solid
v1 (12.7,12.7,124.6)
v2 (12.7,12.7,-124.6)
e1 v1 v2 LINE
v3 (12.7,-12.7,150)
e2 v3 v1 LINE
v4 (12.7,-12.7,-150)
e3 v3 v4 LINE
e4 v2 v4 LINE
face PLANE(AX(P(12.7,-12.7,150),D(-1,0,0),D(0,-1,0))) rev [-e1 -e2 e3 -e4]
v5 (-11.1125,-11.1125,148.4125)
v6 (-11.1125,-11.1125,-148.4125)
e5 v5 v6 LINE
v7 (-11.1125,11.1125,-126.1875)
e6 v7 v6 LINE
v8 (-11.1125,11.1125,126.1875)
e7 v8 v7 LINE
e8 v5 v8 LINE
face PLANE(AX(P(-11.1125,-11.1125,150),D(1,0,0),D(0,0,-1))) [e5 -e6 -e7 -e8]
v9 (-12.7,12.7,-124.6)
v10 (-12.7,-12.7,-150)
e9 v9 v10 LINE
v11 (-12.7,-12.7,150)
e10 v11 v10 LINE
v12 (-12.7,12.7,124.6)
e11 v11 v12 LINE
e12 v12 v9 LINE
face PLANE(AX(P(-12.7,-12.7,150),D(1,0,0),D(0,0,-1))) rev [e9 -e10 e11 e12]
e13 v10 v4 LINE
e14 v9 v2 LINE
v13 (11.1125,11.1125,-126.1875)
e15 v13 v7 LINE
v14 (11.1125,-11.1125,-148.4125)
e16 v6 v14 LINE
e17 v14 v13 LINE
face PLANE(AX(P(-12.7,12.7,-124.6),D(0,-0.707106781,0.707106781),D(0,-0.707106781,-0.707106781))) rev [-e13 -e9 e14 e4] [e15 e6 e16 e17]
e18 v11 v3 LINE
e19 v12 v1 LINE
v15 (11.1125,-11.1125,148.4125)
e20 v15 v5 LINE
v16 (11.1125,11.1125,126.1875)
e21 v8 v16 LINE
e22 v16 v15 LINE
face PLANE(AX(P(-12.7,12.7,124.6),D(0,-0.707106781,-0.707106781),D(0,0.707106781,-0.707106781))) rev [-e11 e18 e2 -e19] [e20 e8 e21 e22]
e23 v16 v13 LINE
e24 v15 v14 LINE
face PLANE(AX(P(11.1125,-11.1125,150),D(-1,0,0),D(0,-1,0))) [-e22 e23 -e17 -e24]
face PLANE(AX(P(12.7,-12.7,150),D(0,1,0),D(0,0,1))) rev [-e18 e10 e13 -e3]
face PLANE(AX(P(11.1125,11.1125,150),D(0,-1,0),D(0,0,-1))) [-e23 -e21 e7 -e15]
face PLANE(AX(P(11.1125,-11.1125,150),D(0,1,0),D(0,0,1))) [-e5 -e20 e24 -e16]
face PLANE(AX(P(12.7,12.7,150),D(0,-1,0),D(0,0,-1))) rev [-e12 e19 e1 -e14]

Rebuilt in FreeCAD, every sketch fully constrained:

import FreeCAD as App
import Part
import Sketcher
from FreeCAD import Vector
Q = App.Units.Quantity


def add_polygon(sketch, points):
    """Adds a closed chain of lines whose ends are joined by coincident constraints."""
    first, n = sketch.GeometryCount, len(points)
    for a, b in zip(points, points[1:] + points[:1]):
        sketch.addGeometry(Part.LineSegment(App.Vector(*a, 0), App.Vector(*b, 0)), False)
    for i in range(n):
        sketch.addConstraint(Sketcher.Constraint("Coincident", first + i, 2, first + (i + 1) % n, 1))

doc = App.newDocument("Part")
body = doc.addObject("PartDesign::Body", "Body")

sketch1 = body.newObject("Sketcher::SketchObject", "Sketch")
sketch1.AttachmentSupport = (doc.getObject("XY_Plane"), [""])
sketch1.MapMode = "FlatFace"
add_polygon(sketch1, [(-13, 13), (-13, -13), (13, -13), (13, 13)])
add_polygon(sketch1, [(11, -11), (-11, -11), (-11, 11), (11, 11)])
sketch1.addConstraint(Sketcher.Constraint("Vertical", 0))
sketch1.addConstraint(Sketcher.Constraint("Horizontal", 1))
sketch1.addConstraint(Sketcher.Constraint("Vertical", 2))
sketch1.addConstraint(Sketcher.Constraint("Horizontal", 3))
sketch1.addConstraint(Sketcher.Constraint("Horizontal", 4))
sketch1.addConstraint(Sketcher.Constraint("Vertical", 5))
sketch1.addConstraint(Sketcher.Constraint("Horizontal", 6))
sketch1.addConstraint(Sketcher.Constraint("Vertical", 7))
sketch1.addConstraint(Sketcher.Constraint("Symmetric", 0, 2, 2, 2, -1, 1))
sketch1.addConstraint(Sketcher.Constraint("Symmetric", 4, 2, 6, 2, -1, 1))
sketch1.addConstraint(Sketcher.Constraint("Equal", 3, 0))
sketch1.addConstraint(Sketcher.Constraint("Equal", 6, 5))
sketch1.addConstraint(Sketcher.Constraint("DistanceX", 1, 1, 1, 2, Q("1 in")))
sketch1.addConstraint(Sketcher.Constraint("DistanceX", 4, 2, 4, 1, Q("0.875 in")))
pad1 = body.newObject("PartDesign::Pad", "Pad")
pad1.Profile = sketch1
pad1.Length = 300
pad1.Midplane = True

sketch2 = body.newObject("Sketcher::SketchObject", "Sketch001")
sketch2.AttachmentSupport = (doc.getObject("YZ_Plane"), [""])
sketch2.MapMode = "FlatFace"
sketch2.AttachmentOffset = App.Placement(Vector(0, 0, 0.5 * 25.4), App.Rotation())
add_polygon(sketch2, [(13, 150), (-13, 150), (13, 125)])
add_polygon(sketch2, [(-13, -150), (13, -150), (13, -125)])
sketch2.addConstraint(Sketcher.Constraint("Horizontal", 0))
sketch2.addConstraint(Sketcher.Constraint("Vertical", 2))
sketch2.addConstraint(Sketcher.Constraint("Horizontal", 3))
sketch2.addConstraint(Sketcher.Constraint("Vertical", 4))
sketch2.addConstraint(Sketcher.Constraint("Symmetric", 0, 2, 3, 2, -1, 1))
sketch2.addConstraint(Sketcher.Constraint("Symmetric", 1, 2, 4, 2, -1))
sketch2.addConstraint(Sketcher.Constraint("Perpendicular", 1, 5))
sketch2.addConstraint(Sketcher.Constraint("Vertical", 0, 2, 5, 2))
sketch2.addConstraint(Sketcher.Constraint("DistanceX", 0, 2, 0, 1, Q("1 in")))
sketch2.addConstraint(Sketcher.Constraint("DistanceY", -1, 1, 0, 2, 150.0))
pocket1 = body.newObject("PartDesign::Pocket", "Pocket")
pocket1.Profile = sketch2
pocket1.Type = "ThroughAll"

doc.recompute()
